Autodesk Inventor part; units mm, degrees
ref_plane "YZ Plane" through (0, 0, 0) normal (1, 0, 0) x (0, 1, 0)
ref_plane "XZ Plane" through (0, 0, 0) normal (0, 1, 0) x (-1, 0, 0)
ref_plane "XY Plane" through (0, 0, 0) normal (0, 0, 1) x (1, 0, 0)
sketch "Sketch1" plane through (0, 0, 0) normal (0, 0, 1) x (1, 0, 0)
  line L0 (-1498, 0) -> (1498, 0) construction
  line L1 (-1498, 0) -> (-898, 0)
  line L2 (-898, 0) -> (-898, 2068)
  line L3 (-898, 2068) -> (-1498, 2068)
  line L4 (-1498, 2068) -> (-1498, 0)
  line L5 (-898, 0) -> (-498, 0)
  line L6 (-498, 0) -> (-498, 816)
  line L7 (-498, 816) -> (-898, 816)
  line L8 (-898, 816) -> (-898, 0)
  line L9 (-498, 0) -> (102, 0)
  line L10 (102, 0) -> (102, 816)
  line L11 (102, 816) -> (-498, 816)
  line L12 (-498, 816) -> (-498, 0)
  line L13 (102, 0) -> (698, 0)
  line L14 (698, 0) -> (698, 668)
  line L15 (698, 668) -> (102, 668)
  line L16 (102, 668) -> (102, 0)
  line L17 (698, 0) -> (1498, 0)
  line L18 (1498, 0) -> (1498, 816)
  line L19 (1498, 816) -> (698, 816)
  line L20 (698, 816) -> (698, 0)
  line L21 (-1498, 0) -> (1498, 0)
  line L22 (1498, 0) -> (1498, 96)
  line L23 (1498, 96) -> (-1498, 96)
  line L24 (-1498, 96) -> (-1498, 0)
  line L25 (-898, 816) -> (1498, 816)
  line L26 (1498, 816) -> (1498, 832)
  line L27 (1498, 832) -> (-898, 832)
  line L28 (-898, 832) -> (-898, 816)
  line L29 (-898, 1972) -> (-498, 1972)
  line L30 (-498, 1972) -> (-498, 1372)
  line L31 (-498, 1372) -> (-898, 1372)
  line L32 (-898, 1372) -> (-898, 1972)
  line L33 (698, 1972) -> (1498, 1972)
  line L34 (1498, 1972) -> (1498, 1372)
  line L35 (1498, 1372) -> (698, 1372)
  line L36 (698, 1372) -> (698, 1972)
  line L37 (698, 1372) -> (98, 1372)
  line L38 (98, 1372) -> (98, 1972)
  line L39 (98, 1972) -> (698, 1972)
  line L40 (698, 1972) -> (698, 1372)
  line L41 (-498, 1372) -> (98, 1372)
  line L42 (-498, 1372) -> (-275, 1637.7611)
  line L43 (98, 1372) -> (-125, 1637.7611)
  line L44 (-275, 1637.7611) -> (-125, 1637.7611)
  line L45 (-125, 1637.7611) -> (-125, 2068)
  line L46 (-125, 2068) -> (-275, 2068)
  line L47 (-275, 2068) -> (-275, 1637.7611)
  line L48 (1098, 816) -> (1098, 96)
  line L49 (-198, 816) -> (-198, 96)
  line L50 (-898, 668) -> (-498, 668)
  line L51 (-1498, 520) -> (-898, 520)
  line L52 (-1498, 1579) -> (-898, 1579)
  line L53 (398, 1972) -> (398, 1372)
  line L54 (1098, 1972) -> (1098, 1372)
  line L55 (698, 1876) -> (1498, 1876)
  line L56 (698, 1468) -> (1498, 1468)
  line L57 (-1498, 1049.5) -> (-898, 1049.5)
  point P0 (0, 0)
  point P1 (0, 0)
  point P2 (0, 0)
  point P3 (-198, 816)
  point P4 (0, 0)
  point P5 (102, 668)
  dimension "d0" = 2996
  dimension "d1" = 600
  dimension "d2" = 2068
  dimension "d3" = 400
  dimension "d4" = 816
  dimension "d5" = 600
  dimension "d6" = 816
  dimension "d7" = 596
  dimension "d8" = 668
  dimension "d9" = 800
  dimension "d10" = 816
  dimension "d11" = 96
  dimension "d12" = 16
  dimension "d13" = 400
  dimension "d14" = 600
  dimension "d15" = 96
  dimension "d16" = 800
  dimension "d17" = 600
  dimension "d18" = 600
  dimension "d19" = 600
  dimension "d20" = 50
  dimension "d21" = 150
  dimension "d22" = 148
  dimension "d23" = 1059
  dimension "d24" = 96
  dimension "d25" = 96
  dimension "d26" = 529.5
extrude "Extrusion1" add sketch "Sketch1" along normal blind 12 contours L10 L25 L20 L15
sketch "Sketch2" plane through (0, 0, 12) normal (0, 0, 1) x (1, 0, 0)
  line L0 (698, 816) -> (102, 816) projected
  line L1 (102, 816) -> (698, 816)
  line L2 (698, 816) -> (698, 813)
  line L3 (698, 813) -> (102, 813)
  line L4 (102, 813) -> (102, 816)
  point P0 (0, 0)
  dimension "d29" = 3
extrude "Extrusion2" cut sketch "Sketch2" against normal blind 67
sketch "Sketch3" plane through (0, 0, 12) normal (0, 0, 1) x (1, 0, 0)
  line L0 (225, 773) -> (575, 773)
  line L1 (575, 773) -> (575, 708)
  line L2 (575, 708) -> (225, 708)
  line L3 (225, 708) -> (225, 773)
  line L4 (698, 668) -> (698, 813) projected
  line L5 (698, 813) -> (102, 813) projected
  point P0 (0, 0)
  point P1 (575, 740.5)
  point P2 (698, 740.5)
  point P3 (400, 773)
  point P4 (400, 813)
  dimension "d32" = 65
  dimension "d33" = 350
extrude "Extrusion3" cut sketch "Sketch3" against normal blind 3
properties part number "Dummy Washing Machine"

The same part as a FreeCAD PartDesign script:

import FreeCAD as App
import Part
import Sketcher
Q = App.Units.Quantity


def add_polygon(sketch, points):
    """Adds a closed chain of lines whose ends are joined by coincident constraints."""
    first, n = sketch.GeometryCount, len(points)
    for a, b in zip(points, points[1:] + points[:1]):
        sketch.addGeometry(Part.LineSegment(App.Vector(*a, 0), App.Vector(*b, 0)), False)
    for i in range(n):
        sketch.addConstraint(Sketcher.Constraint("Coincident", first + i, 2, first + (i + 1) % n, 1))

doc = App.newDocument("Part")
params = doc.addObject("Spreadsheet::Sheet", "Params")
for row, (alias, value) in enumerate([
    ("sketch1_width", "596 mm"),
    ("sketch1_height", "148 mm"),
    ("pad1_length", "12 mm"),
    ("sketch2_height", "3 mm"),
    ("sketch2_width", "596 mm"),
    ("pocket1_length", "67 mm"),
    ("sketch3_width", "350 mm"),
    ("sketch3_height", "65 mm"),
    ("pocket2_length", "3 mm"),
], start=1):
    params.set(f"A{row}", alias)
    params.set(f"B{row}", "=" + value)
    params.setAlias(f"B{row}", alias)

body = doc.addObject("PartDesign::Body", "Body")

# Sketch on XY plane
sketch1 = body.newObject("Sketcher::SketchObject", "Sketch")
sketch1.AttachmentSupport = (doc.getObject("XY_Plane"), [""])
sketch1.MapMode = "FlatFace"
add_polygon(sketch1, [(102, 816), (102, 668), (698, 668), (698, 816)])  # lines 0-3
sketch1.addConstraint(Sketcher.Constraint("Vertical", 0))
sketch1.addConstraint(Sketcher.Constraint("Horizontal", 1))
sketch1.addConstraint(Sketcher.Constraint("Vertical", 2))
sketch1.addConstraint(Sketcher.Constraint("Horizontal", 3))
sketch1.addConstraint(Sketcher.Constraint("DistanceX", 1, 1, 1, 2, Q("596 mm")))
sketch1.addConstraint(Sketcher.Constraint("DistanceY", 0, 2, 0, 1, Q("148 mm")))
sketch1.addConstraint(Sketcher.Constraint("DistanceY", -1, 1, 0, 2, Q("668 mm")))
sketch1.addConstraint(Sketcher.Constraint("DistanceX", -1, 1, 0, 2, Q("102 mm")))
sketch1.setExpression("Constraints[8]", "Params.sketch1_width")
sketch1.setExpression("Constraints[9]", "Params.sketch1_height")
pad1 = body.newObject("PartDesign::Pad", "Pad")
pad1.Profile = sketch1
pad1.setExpression("Length", "Params.pad1_length")

# Sketch on XY plane
sketch2 = body.newObject("Sketcher::SketchObject", "Sketch001")
sketch2.AttachmentSupport = (doc.getObject("XY_Plane"), [""])
sketch2.MapMode = "FlatFace"
sketch2.AttachmentOffset = App.Placement(App.Vector(0, 0, 12), App.Rotation())
add_polygon(sketch2, [(698, 813), (698, 816), (102, 816), (102, 813)])  # lines 0-3
sketch2.addConstraint(Sketcher.Constraint("Vertical", 0))
sketch2.addConstraint(Sketcher.Constraint("Horizontal", 1))
sketch2.addConstraint(Sketcher.Constraint("Vertical", 2))
sketch2.addConstraint(Sketcher.Constraint("Horizontal", 3))
sketch2.addConstraint(Sketcher.Constraint("DistanceY", 0, 1, 0, 2, Q("3 mm")))
sketch2.addConstraint(Sketcher.Constraint("DistanceX", 1, 2, 1, 1, Q("596 mm")))
sketch2.addConstraint(Sketcher.Constraint("DistanceX", -1, 1, 0, 2, Q("698 mm")))
sketch2.addConstraint(Sketcher.Constraint("DistanceY", -1, 1, 0, 2, Q("816 mm")))
sketch2.setExpression("Constraints[8]", "Params.sketch2_height")
sketch2.setExpression("Constraints[9]", "Params.sketch2_width")
pocket1 = body.newObject("PartDesign::Pocket", "Pocket")
pocket1.Profile = sketch2
pocket1.setExpression("Length", "Params.pocket1_length")

# Sketch on XY plane
sketch3 = body.newObject("Sketcher::SketchObject", "Sketch002")
sketch3.AttachmentSupport = (doc.getObject("XY_Plane"), [""])
sketch3.MapMode = "FlatFace"
sketch3.AttachmentOffset = App.Placement(App.Vector(0, 0, 12), App.Rotation())
add_polygon(sketch3, [(575, 773), (225, 773), (225, 708), (575, 708)])  # lines 0-3
sketch3.addConstraint(Sketcher.Constraint("Horizontal", 0))
sketch3.addConstraint(Sketcher.Constraint("Vertical", 1))
sketch3.addConstraint(Sketcher.Constraint("Horizontal", 2))
sketch3.addConstraint(Sketcher.Constraint("Vertical", 3))
sketch3.addConstraint(Sketcher.Constraint("DistanceX", 0, 2, 0, 1, Q("350 mm")))
sketch3.addConstraint(Sketcher.Constraint("DistanceY", 1, 2, 1, 1, Q("65 mm")))
sketch3.addConstraint(Sketcher.Constraint("DistanceX", -1, 1, 0, 2, Q("225 mm")))
sketch3.addConstraint(Sketcher.Constraint("DistanceY", -1, 1, 0, 2, Q("773 mm")))
sketch3.setExpression("Constraints[8]", "Params.sketch3_width")
sketch3.setExpression("Constraints[9]", "Params.sketch3_height")
pocket2 = body.newObject("PartDesign::Pocket", "Pocket001")
pocket2.Profile = sketch3
pocket2.setExpression("Length", "Params.pocket2_length")

doc.recompute()
